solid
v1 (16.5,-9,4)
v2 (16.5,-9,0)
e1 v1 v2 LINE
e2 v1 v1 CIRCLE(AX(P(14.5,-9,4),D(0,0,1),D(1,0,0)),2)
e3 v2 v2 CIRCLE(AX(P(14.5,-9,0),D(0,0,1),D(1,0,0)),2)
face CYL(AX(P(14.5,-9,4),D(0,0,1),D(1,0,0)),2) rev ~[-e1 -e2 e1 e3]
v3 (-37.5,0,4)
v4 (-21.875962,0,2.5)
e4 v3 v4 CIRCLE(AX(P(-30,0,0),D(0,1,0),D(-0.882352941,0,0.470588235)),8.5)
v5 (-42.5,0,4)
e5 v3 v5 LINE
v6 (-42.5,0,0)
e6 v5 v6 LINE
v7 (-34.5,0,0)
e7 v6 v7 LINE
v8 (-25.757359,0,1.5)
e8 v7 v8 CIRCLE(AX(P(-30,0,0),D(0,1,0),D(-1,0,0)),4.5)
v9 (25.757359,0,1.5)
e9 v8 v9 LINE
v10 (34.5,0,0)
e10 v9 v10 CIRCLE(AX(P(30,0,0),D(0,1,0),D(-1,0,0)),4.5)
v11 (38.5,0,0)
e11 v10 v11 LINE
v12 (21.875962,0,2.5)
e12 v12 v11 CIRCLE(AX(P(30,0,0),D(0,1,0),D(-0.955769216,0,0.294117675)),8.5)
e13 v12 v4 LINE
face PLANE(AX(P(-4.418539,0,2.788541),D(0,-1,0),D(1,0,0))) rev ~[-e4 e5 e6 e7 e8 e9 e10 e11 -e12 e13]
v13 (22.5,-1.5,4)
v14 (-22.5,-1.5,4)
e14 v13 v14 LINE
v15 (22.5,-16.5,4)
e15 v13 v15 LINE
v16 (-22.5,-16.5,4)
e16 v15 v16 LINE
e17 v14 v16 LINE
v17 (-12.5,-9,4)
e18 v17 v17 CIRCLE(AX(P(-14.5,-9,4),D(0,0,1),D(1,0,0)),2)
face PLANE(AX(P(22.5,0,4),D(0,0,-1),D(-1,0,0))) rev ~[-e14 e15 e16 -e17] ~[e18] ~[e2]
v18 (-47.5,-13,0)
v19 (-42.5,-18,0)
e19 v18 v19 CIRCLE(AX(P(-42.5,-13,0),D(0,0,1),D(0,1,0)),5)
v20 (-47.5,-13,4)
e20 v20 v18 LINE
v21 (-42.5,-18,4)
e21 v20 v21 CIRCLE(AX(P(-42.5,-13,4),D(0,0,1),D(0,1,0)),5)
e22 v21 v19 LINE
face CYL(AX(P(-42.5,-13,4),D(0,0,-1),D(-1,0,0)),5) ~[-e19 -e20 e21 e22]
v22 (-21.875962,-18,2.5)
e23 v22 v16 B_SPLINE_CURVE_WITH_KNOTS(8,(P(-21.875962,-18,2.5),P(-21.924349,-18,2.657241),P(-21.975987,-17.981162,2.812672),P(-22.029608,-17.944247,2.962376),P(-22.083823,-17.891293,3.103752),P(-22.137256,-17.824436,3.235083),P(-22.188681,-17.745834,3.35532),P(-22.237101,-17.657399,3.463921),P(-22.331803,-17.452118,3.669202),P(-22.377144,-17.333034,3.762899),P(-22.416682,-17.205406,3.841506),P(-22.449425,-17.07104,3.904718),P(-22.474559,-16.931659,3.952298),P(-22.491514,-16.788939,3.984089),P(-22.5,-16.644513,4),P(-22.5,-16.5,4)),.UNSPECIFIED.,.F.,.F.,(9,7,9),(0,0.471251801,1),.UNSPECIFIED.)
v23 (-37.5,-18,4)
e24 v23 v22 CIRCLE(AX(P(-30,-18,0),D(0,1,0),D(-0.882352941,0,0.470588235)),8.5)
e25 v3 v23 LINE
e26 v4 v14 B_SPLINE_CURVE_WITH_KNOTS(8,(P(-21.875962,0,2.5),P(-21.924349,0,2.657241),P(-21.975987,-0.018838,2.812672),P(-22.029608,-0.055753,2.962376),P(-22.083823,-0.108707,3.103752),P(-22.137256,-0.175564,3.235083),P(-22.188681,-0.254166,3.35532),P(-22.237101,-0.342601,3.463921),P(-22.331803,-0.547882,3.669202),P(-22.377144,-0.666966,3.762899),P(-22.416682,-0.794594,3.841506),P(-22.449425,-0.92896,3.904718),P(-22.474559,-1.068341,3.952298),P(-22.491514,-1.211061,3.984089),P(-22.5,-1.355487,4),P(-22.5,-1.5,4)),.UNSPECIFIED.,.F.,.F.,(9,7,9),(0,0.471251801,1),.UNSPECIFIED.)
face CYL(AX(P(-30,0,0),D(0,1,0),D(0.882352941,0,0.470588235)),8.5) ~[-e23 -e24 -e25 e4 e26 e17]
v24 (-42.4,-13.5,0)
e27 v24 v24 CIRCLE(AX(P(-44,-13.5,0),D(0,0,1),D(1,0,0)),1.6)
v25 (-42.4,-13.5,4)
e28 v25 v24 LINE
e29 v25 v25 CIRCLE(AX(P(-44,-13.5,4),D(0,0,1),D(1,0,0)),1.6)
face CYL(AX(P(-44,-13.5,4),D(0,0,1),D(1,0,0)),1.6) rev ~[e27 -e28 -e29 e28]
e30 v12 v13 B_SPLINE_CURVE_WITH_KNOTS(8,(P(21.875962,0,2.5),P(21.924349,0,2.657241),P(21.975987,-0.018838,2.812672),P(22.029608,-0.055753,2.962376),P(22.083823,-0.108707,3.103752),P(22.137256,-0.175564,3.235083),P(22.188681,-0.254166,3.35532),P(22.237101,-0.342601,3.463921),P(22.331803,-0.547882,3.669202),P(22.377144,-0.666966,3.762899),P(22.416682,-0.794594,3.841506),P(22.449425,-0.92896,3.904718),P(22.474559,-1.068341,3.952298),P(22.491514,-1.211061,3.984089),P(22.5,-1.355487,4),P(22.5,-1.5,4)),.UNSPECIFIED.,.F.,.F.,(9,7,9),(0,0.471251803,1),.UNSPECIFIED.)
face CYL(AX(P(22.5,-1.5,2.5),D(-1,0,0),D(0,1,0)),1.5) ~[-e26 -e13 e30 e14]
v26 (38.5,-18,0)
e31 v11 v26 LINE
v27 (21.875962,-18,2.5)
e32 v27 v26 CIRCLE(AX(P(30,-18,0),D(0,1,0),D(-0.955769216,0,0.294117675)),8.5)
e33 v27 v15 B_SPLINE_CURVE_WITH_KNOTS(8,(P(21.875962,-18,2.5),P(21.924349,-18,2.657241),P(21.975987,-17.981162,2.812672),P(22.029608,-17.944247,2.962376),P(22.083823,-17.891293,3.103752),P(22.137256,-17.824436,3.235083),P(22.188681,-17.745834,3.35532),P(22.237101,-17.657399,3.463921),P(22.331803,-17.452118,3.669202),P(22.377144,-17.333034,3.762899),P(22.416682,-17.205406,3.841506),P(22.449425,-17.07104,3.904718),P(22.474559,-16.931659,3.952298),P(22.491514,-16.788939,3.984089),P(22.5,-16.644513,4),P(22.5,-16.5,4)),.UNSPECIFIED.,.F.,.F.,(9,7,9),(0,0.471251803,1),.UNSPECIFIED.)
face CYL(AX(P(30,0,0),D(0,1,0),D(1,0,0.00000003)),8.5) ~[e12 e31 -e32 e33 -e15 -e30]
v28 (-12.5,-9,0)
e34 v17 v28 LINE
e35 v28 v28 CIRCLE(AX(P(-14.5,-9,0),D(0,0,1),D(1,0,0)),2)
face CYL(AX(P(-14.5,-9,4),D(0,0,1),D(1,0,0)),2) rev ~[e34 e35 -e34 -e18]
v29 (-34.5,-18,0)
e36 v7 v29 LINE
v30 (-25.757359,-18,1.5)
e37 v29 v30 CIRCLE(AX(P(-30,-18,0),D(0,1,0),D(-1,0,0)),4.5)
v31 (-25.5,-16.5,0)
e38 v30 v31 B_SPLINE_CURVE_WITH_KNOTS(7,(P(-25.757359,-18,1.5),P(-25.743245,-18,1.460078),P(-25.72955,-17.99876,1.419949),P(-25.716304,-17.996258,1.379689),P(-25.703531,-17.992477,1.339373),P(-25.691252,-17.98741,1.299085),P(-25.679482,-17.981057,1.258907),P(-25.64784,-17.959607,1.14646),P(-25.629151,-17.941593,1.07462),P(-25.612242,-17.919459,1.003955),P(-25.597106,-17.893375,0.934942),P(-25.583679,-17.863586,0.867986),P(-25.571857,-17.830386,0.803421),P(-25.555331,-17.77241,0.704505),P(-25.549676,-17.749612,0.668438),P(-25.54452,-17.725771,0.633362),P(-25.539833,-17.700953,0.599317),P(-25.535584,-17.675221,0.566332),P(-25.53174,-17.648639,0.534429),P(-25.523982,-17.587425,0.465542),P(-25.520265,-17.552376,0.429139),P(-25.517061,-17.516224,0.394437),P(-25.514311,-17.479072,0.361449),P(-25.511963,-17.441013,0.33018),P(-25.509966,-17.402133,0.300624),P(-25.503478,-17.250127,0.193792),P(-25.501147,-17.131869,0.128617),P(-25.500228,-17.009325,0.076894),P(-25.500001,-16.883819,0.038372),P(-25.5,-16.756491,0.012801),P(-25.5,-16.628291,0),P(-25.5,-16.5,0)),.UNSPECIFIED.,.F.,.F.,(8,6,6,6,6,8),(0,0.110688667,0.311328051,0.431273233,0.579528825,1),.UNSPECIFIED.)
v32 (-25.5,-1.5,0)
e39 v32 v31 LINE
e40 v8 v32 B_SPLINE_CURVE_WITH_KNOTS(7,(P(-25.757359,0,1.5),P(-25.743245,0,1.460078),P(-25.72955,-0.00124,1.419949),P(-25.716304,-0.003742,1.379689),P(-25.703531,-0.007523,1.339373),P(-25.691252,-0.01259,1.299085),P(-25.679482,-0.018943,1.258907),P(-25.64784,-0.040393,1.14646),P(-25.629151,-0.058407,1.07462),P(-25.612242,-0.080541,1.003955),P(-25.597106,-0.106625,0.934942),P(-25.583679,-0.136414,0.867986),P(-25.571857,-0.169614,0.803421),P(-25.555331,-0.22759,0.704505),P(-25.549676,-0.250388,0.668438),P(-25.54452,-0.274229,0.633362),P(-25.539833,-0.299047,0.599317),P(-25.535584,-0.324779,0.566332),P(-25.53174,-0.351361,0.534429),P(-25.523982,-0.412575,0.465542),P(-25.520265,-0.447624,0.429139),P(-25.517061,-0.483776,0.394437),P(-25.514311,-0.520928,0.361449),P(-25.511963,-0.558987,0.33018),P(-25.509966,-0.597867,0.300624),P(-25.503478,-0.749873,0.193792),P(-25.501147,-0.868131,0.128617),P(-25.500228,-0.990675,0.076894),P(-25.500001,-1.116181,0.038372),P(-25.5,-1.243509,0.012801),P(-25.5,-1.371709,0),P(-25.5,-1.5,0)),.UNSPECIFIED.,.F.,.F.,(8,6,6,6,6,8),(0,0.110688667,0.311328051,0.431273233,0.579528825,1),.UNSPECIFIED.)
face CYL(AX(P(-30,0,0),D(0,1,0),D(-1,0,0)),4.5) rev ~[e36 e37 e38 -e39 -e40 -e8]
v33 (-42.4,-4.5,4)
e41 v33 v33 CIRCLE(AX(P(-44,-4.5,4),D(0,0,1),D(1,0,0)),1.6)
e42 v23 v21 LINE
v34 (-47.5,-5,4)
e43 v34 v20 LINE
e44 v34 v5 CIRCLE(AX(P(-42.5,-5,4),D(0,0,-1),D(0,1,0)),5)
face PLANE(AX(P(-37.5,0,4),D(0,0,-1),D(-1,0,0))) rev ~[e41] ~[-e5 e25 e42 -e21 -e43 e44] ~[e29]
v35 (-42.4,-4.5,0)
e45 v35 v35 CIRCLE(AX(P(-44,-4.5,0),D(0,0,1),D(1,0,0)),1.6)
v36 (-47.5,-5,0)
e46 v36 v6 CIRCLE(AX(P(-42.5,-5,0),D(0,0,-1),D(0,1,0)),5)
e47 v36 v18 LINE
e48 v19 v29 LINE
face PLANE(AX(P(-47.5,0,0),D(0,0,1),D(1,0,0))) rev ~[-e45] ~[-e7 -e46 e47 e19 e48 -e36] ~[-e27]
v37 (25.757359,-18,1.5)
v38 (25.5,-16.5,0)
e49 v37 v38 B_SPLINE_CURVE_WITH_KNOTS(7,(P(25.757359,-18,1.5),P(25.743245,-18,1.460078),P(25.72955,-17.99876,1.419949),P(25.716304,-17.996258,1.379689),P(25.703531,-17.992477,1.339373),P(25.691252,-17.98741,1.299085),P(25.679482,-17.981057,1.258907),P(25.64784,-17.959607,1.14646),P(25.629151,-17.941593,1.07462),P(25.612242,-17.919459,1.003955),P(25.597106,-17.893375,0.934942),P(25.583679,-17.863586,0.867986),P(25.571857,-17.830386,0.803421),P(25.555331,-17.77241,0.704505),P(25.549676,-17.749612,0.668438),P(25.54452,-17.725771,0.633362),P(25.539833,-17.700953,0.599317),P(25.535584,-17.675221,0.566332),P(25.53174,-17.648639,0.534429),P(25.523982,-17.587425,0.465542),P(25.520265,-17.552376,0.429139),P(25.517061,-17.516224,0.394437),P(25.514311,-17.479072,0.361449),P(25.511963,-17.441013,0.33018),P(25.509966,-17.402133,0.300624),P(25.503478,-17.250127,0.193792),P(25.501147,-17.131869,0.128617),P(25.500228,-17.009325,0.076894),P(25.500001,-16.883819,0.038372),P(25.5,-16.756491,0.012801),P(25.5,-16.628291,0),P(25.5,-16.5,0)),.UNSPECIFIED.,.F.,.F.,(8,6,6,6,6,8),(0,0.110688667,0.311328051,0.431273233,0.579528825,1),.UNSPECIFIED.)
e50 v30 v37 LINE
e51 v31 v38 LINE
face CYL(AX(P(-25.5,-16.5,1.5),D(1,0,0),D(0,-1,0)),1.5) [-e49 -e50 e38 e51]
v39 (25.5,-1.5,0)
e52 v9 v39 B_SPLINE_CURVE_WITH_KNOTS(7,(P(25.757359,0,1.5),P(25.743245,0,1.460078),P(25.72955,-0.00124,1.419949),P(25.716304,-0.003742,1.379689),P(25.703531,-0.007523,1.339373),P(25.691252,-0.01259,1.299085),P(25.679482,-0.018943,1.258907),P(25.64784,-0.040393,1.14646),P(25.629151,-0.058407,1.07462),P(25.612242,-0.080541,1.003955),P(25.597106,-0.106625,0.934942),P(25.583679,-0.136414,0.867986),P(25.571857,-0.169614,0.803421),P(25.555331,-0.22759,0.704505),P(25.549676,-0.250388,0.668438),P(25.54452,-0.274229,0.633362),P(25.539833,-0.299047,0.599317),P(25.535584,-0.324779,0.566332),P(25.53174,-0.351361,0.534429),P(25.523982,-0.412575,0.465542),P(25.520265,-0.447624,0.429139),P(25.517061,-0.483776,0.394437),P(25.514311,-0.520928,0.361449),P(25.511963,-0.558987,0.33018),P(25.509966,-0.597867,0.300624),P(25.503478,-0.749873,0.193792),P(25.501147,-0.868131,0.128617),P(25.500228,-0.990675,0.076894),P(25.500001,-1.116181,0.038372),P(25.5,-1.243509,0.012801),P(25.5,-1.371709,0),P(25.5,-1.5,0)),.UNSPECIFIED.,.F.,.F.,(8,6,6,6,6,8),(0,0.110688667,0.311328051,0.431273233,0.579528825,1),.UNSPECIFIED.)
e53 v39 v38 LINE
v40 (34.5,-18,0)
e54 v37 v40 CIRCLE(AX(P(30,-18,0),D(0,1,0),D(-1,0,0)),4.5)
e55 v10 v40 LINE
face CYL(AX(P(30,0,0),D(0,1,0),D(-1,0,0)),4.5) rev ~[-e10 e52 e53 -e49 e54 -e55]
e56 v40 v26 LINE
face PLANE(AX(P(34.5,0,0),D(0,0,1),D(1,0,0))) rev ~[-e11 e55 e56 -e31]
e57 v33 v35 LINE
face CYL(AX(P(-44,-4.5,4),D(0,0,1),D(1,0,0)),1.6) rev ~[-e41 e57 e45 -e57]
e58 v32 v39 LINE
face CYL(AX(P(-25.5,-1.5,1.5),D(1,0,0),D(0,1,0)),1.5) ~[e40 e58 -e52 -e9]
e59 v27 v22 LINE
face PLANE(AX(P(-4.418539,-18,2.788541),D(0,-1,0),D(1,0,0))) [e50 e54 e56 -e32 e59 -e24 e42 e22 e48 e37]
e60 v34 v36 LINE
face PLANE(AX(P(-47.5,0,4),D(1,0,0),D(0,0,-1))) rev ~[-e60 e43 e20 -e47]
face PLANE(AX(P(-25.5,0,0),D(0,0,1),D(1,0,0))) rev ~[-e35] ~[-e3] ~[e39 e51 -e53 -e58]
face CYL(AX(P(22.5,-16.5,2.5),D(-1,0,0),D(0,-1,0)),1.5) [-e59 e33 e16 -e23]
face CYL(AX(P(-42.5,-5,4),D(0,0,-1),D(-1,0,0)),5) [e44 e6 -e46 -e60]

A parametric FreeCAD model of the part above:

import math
import FreeCAD as App
import Part
import Sketcher

V = App.Vector


def edges_at(feature, points):
    """Names of the edges that pass closest to the given points."""
    edges = feature.Shape.Edges
    near = lambda p: min(range(len(edges)), key=lambda i: edges[i].distToShape(Part.Vertex(*p))[0])
    return sorted({f"Edge{near(p) + 1}" for p in points})

doc = App.newDocument("Part")
body = doc.addObject("PartDesign::Body", "Body")

# Sketch on XZ plane
sketch1 = body.newObject("Sketcher::SketchObject", "Sketch")
sketch1.AttachmentSupport = (doc.getObject("XZ_Plane"), [""])
sketch1.MapMode = "FlatFace"
sketch1.addGeometry([
    Part.ArcOfCircle(Part.Circle(V(30, 0, 0), V(0, 0, 1), 4.5), math.radians(0), math.radians(180)),  # 0
    Part.LineSegment(V(34.5, 0, 0), V(38.5, 0, 0)),  # 1
    Part.ArcOfCircle(Part.Circle(V(30, 0, 0), V(0, 0, 1), 8.5), math.radians(0), math.radians(152)),  # 2
    Part.LineSegment(V(22.5, 4, 0), V(-22.5, 4, 0)),  # 3
    Part.ArcOfCircle(Part.Circle(V(-30, 0, 0), V(0, 0, 1), 8.5), math.radians(28), math.radians(152)),  # 4
    Part.LineSegment(V(-37.5, 4, 0), V(-47.5, 4, 0)),  # 5
    Part.LineSegment(V(-47.5, 4, 0), V(-47.5, 0, 0)),  # 6
    Part.LineSegment(V(-47.5, 0, 0), V(-34.5, 0, 0)),  # 7
    Part.ArcOfCircle(Part.Circle(V(-30, 0, 0), V(0, 0, 1), 4.5), math.radians(0), math.radians(180)),  # 8
    Part.LineSegment(V(-25.5, 0, 0), V(25.5, 0, 0)),  # 9
], False)
sketch1.addConstraint([
    Sketcher.Constraint("Coincident", 0, 1, 1, 1),
    Sketcher.Constraint("Coincident", 1, 2, 2, 1),
    Sketcher.Constraint("Coincident", 2, 2, 3, 1),
    Sketcher.Constraint("Coincident", 3, 2, 4, 1),
    Sketcher.Constraint("Coincident", 4, 2, 5, 1),
    Sketcher.Constraint("Coincident", 5, 2, 6, 1),
    Sketcher.Constraint("Coincident", 6, 2, 7, 1),
    Sketcher.Constraint("Coincident", 7, 2, 8, 2),
    Sketcher.Constraint("Coincident", 8, 1, 9, 1),
    Sketcher.Constraint("Coincident", 9, 2, 0, 2),
    Sketcher.Constraint("Horizontal", 1),
    Sketcher.Constraint("Horizontal", 3),
    Sketcher.Constraint("Horizontal", 5),
    Sketcher.Constraint("Vertical", 6),
    Sketcher.Constraint("Horizontal", 7),
    Sketcher.Constraint("Horizontal", 9),
    Sketcher.Constraint("Coincident", 2, 3, 0, 3),
    Sketcher.Constraint("Coincident", 8, 3, 4, 3),
    Sketcher.Constraint("Equal", 2, 4),
    Sketcher.Constraint("Equal", 0, 8),
    Sketcher.Constraint("Symmetric", 0, 3, 4, 3, -1, 1),
    Sketcher.Constraint("PointOnObject", 0, 3, -1),
    Sketcher.Constraint("PointOnObject", 0, 1, -1),
    Sketcher.Constraint("PointOnObject", 6, 2, -1),
    Sketcher.Constraint("PointOnObject", 8, 1, -1),
    Sketcher.Constraint("Horizontal", 3, 2, 4, 2),
    Sketcher.Constraint("Equal", 1, 6),
    Sketcher.Constraint("Radius", 0, 4.5),
    Sketcher.Constraint("Radius", 2, 8.5),
    Sketcher.Constraint("DistanceX", 3, 2, 3, 1, 45.0),
    Sketcher.Constraint("DistanceX", 5, 2, 5, 1, 10.0),
])
pad1 = body.newObject("PartDesign::Pad", "Pad")
pad1.Profile = sketch1
pad1.Length = 18
doc.recompute()

fillet = body.newObject("PartDesign::Fillet", "Fillet")
fillet.Base = (pad1, edges_at(pad1, [(-47.5, -18, 2), (-47.5, 0, 2)]))
fillet.Radius = 5
doc.recompute()

fillet2 = body.newObject("PartDesign::Fillet", "Fillet001")
fillet2.Base = (fillet, edges_at(fillet, [
    (0, -18, 4),
    (0, -18, 0),
    (0, 0, 4),
    (0, 0, 0),
]))
fillet2.Radius = 1.5

# Sketch on XY plane
sketch2 = body.newObject("Sketcher::SketchObject", "Sketch001")
sketch2.AttachmentSupport = (doc.getObject("XY_Plane"), [""])
sketch2.MapMode = "FlatFace"
sketch2.AttachmentOffset = App.Placement(V(0, 0, 4), App.Rotation())
sketch2.addGeometry([
    Part.Circle(V(-44, -4.5, 0), V(0, 0, 1), 1.6),
    Part.Circle(V(-44, -13.5, 0), V(0, 0, 1), 1.6),
], False)
sketch2.addConstraint([
    Sketcher.Constraint("Equal", 0, 1),
    Sketcher.Constraint("Vertical", 0, 3, 1, 3),
    Sketcher.Constraint("Diameter", 0, 3.2),
    Sketcher.Constraint("DistanceX", 0, 3, -1, 1, 44.0),
    Sketcher.Constraint("DistanceY", 1, 3, 0, 3, 9.0),
    Sketcher.Constraint("DistanceY", 0, 3, -1, 1, 4.5),
])
pocket1 = body.newObject("PartDesign::Pocket", "Pocket")
pocket1.Profile = sketch2
pocket1.Type = "ThroughAll"

# Sketch on XY plane
sketch3 = body.newObject("Sketcher::SketchObject", "Sketch002")
sketch3.AttachmentSupport = (doc.getObject("XY_Plane"), [""])
sketch3.MapMode = "FlatFace"
sketch3.AttachmentOffset = App.Placement(V(0, 0, 4), App.Rotation())
sketch3.addGeometry([
    Part.Circle(V(14.5, -9, 0), V(0, 0, 1), 2),
    Part.Circle(V(-14.5, -9, 0), V(0, 0, 1), 2),
], False)
sketch3.addConstraint([
    Sketcher.Constraint("Equal", 0, 1),
    Sketcher.Constraint("Symmetric", 0, 3, 1, 3, -2),
    Sketcher.Constraint("Diameter", 0, 4.0),
    Sketcher.Constraint("DistanceY", 0, 3, -1, 1, 9.0),
    Sketcher.Constraint("DistanceX", 1, 3, 0, 3, 29.0),
])
pocket2 = body.newObject("PartDesign::Pocket", "Pocket001")
pocket2.Profile = sketch3
pocket2.Type = "ThroughAll"

doc.recompute()
